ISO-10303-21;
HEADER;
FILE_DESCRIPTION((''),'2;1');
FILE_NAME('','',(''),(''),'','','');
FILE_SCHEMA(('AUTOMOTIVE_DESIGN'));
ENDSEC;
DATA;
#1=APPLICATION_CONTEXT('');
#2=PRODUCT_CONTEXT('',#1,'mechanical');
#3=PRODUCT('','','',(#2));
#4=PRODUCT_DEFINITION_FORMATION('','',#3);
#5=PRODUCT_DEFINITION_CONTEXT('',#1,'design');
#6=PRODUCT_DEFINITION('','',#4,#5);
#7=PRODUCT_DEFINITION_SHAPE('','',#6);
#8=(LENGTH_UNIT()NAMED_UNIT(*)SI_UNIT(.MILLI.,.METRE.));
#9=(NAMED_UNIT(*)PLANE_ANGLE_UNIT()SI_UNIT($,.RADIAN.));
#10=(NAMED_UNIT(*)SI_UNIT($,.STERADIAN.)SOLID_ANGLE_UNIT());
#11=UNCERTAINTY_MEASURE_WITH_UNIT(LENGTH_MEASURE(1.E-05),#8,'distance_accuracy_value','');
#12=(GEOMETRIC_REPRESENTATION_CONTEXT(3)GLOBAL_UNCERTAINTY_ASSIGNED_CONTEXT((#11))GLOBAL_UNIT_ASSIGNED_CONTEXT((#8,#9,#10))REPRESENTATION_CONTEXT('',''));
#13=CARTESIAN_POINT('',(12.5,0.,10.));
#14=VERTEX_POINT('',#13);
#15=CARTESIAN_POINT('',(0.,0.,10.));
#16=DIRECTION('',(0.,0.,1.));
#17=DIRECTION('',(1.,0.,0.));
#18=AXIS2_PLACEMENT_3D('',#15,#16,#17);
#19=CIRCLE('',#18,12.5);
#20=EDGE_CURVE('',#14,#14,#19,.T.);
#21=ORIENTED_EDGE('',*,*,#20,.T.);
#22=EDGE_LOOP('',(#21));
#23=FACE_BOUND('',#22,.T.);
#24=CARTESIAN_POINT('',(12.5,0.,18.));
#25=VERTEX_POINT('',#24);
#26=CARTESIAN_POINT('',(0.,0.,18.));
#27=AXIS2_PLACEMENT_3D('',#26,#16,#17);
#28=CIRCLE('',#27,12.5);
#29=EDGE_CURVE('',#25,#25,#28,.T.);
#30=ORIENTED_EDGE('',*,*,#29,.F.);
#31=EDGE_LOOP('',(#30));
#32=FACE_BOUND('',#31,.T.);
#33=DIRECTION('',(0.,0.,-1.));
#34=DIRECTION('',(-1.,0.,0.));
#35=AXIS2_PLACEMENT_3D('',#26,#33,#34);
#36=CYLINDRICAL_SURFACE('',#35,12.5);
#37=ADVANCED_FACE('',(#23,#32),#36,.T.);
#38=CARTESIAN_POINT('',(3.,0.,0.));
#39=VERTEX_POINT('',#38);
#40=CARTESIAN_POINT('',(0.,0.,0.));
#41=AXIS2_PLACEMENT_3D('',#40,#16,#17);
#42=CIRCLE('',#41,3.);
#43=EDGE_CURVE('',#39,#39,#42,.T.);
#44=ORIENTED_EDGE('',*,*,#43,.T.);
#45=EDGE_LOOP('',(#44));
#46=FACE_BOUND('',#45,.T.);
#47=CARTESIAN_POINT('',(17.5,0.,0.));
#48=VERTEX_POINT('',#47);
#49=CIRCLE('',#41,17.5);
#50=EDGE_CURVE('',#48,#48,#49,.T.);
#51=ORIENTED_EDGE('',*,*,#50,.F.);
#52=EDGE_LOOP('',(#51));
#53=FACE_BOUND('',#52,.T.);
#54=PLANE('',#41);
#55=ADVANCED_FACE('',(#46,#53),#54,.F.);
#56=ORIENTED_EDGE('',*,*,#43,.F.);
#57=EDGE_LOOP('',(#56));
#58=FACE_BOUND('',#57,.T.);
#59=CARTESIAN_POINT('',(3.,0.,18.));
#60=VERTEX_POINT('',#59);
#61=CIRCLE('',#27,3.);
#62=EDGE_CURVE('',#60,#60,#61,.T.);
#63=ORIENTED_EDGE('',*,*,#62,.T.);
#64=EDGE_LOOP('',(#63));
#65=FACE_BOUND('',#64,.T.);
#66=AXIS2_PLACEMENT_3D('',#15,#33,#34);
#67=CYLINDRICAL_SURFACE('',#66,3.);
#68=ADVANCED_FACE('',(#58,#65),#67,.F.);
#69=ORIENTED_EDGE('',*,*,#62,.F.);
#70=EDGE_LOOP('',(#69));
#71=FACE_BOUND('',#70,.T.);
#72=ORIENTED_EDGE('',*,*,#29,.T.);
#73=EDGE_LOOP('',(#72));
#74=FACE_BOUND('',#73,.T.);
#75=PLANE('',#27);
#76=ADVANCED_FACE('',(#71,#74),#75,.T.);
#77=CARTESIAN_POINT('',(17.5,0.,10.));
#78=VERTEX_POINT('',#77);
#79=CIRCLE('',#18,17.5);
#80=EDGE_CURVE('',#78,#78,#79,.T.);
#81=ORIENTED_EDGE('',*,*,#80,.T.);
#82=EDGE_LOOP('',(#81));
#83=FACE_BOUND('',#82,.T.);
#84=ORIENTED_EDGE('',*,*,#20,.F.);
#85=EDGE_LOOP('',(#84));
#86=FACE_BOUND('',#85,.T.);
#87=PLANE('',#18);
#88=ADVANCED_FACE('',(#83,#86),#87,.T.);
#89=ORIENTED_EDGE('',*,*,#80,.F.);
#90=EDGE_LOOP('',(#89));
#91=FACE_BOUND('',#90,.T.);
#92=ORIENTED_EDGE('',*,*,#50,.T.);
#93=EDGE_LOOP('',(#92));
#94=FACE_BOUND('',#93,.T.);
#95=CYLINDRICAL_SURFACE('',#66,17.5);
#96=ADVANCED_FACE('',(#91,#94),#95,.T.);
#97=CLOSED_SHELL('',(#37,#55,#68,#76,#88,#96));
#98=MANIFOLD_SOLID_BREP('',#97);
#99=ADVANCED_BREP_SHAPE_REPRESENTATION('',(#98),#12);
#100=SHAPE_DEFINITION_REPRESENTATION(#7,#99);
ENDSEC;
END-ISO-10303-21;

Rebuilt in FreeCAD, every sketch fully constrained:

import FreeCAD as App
import Part
import Sketcher
Q = App.Units.Quantity

doc = App.newDocument("Part")
body = doc.addObject("PartDesign::Body", "Body")

sketch1 = body.newObject("Sketcher::SketchObject", "Sketch")
sketch1.AttachmentSupport = (doc.getObject("XY_Plane"), [""])
sketch1.MapMode = "FlatFace"
sketch1.addGeometry([
    Part.Circle(App.Vector(0, 0, 0), App.Vector(0, 0, 1), 17.5),
    Part.Circle(App.Vector(0, 0, 0), App.Vector(0, 0, 1), 3),
], False)
sketch1.addConstraint([
    Sketcher.Constraint("Coincident", 0, 3, -1, 1),
    Sketcher.Constraint("Coincident", 1, 3, -1, 1),
    Sketcher.Constraint("Diameter", 0, Q("35 mm")),
    Sketcher.Constraint("Diameter", 1, Q("6 mm")),
])
pad1 = body.newObject("PartDesign::Pad", "Pad")
pad1.Profile = sketch1
pad1.Length = 10

sketch2 = body.newObject("Sketcher::SketchObject", "Sketch001")
sketch2.AttachmentSupport = (doc.getObject("XY_Plane"), [""])
sketch2.MapMode = "FlatFace"
sketch2.AttachmentOffset = App.Placement(App.Vector(0, 0, 10), App.Rotation())
sketch2.addGeometry([
    Part.Circle(App.Vector(0, 0, 0), App.Vector(0, 0, 1), 12.5),
    Part.Circle(App.Vector(0, 0, 0), App.Vector(0, 0, 1), 3),
], False)
sketch2.addConstraint([
    Sketcher.Constraint("Coincident", 0, 3, -1, 1),
    Sketcher.Constraint("Coincident", 1, 3, -1, 1),
    Sketcher.Constraint("Diameter", 0, Q("25 mm")),
    Sketcher.Constraint("Diameter", 1, Q("6 mm")),
])
pad2 = body.newObject("PartDesign::Pad", "Pad001")
pad2.Profile = sketch2
pad2.Length = 8

doc.recompute()
